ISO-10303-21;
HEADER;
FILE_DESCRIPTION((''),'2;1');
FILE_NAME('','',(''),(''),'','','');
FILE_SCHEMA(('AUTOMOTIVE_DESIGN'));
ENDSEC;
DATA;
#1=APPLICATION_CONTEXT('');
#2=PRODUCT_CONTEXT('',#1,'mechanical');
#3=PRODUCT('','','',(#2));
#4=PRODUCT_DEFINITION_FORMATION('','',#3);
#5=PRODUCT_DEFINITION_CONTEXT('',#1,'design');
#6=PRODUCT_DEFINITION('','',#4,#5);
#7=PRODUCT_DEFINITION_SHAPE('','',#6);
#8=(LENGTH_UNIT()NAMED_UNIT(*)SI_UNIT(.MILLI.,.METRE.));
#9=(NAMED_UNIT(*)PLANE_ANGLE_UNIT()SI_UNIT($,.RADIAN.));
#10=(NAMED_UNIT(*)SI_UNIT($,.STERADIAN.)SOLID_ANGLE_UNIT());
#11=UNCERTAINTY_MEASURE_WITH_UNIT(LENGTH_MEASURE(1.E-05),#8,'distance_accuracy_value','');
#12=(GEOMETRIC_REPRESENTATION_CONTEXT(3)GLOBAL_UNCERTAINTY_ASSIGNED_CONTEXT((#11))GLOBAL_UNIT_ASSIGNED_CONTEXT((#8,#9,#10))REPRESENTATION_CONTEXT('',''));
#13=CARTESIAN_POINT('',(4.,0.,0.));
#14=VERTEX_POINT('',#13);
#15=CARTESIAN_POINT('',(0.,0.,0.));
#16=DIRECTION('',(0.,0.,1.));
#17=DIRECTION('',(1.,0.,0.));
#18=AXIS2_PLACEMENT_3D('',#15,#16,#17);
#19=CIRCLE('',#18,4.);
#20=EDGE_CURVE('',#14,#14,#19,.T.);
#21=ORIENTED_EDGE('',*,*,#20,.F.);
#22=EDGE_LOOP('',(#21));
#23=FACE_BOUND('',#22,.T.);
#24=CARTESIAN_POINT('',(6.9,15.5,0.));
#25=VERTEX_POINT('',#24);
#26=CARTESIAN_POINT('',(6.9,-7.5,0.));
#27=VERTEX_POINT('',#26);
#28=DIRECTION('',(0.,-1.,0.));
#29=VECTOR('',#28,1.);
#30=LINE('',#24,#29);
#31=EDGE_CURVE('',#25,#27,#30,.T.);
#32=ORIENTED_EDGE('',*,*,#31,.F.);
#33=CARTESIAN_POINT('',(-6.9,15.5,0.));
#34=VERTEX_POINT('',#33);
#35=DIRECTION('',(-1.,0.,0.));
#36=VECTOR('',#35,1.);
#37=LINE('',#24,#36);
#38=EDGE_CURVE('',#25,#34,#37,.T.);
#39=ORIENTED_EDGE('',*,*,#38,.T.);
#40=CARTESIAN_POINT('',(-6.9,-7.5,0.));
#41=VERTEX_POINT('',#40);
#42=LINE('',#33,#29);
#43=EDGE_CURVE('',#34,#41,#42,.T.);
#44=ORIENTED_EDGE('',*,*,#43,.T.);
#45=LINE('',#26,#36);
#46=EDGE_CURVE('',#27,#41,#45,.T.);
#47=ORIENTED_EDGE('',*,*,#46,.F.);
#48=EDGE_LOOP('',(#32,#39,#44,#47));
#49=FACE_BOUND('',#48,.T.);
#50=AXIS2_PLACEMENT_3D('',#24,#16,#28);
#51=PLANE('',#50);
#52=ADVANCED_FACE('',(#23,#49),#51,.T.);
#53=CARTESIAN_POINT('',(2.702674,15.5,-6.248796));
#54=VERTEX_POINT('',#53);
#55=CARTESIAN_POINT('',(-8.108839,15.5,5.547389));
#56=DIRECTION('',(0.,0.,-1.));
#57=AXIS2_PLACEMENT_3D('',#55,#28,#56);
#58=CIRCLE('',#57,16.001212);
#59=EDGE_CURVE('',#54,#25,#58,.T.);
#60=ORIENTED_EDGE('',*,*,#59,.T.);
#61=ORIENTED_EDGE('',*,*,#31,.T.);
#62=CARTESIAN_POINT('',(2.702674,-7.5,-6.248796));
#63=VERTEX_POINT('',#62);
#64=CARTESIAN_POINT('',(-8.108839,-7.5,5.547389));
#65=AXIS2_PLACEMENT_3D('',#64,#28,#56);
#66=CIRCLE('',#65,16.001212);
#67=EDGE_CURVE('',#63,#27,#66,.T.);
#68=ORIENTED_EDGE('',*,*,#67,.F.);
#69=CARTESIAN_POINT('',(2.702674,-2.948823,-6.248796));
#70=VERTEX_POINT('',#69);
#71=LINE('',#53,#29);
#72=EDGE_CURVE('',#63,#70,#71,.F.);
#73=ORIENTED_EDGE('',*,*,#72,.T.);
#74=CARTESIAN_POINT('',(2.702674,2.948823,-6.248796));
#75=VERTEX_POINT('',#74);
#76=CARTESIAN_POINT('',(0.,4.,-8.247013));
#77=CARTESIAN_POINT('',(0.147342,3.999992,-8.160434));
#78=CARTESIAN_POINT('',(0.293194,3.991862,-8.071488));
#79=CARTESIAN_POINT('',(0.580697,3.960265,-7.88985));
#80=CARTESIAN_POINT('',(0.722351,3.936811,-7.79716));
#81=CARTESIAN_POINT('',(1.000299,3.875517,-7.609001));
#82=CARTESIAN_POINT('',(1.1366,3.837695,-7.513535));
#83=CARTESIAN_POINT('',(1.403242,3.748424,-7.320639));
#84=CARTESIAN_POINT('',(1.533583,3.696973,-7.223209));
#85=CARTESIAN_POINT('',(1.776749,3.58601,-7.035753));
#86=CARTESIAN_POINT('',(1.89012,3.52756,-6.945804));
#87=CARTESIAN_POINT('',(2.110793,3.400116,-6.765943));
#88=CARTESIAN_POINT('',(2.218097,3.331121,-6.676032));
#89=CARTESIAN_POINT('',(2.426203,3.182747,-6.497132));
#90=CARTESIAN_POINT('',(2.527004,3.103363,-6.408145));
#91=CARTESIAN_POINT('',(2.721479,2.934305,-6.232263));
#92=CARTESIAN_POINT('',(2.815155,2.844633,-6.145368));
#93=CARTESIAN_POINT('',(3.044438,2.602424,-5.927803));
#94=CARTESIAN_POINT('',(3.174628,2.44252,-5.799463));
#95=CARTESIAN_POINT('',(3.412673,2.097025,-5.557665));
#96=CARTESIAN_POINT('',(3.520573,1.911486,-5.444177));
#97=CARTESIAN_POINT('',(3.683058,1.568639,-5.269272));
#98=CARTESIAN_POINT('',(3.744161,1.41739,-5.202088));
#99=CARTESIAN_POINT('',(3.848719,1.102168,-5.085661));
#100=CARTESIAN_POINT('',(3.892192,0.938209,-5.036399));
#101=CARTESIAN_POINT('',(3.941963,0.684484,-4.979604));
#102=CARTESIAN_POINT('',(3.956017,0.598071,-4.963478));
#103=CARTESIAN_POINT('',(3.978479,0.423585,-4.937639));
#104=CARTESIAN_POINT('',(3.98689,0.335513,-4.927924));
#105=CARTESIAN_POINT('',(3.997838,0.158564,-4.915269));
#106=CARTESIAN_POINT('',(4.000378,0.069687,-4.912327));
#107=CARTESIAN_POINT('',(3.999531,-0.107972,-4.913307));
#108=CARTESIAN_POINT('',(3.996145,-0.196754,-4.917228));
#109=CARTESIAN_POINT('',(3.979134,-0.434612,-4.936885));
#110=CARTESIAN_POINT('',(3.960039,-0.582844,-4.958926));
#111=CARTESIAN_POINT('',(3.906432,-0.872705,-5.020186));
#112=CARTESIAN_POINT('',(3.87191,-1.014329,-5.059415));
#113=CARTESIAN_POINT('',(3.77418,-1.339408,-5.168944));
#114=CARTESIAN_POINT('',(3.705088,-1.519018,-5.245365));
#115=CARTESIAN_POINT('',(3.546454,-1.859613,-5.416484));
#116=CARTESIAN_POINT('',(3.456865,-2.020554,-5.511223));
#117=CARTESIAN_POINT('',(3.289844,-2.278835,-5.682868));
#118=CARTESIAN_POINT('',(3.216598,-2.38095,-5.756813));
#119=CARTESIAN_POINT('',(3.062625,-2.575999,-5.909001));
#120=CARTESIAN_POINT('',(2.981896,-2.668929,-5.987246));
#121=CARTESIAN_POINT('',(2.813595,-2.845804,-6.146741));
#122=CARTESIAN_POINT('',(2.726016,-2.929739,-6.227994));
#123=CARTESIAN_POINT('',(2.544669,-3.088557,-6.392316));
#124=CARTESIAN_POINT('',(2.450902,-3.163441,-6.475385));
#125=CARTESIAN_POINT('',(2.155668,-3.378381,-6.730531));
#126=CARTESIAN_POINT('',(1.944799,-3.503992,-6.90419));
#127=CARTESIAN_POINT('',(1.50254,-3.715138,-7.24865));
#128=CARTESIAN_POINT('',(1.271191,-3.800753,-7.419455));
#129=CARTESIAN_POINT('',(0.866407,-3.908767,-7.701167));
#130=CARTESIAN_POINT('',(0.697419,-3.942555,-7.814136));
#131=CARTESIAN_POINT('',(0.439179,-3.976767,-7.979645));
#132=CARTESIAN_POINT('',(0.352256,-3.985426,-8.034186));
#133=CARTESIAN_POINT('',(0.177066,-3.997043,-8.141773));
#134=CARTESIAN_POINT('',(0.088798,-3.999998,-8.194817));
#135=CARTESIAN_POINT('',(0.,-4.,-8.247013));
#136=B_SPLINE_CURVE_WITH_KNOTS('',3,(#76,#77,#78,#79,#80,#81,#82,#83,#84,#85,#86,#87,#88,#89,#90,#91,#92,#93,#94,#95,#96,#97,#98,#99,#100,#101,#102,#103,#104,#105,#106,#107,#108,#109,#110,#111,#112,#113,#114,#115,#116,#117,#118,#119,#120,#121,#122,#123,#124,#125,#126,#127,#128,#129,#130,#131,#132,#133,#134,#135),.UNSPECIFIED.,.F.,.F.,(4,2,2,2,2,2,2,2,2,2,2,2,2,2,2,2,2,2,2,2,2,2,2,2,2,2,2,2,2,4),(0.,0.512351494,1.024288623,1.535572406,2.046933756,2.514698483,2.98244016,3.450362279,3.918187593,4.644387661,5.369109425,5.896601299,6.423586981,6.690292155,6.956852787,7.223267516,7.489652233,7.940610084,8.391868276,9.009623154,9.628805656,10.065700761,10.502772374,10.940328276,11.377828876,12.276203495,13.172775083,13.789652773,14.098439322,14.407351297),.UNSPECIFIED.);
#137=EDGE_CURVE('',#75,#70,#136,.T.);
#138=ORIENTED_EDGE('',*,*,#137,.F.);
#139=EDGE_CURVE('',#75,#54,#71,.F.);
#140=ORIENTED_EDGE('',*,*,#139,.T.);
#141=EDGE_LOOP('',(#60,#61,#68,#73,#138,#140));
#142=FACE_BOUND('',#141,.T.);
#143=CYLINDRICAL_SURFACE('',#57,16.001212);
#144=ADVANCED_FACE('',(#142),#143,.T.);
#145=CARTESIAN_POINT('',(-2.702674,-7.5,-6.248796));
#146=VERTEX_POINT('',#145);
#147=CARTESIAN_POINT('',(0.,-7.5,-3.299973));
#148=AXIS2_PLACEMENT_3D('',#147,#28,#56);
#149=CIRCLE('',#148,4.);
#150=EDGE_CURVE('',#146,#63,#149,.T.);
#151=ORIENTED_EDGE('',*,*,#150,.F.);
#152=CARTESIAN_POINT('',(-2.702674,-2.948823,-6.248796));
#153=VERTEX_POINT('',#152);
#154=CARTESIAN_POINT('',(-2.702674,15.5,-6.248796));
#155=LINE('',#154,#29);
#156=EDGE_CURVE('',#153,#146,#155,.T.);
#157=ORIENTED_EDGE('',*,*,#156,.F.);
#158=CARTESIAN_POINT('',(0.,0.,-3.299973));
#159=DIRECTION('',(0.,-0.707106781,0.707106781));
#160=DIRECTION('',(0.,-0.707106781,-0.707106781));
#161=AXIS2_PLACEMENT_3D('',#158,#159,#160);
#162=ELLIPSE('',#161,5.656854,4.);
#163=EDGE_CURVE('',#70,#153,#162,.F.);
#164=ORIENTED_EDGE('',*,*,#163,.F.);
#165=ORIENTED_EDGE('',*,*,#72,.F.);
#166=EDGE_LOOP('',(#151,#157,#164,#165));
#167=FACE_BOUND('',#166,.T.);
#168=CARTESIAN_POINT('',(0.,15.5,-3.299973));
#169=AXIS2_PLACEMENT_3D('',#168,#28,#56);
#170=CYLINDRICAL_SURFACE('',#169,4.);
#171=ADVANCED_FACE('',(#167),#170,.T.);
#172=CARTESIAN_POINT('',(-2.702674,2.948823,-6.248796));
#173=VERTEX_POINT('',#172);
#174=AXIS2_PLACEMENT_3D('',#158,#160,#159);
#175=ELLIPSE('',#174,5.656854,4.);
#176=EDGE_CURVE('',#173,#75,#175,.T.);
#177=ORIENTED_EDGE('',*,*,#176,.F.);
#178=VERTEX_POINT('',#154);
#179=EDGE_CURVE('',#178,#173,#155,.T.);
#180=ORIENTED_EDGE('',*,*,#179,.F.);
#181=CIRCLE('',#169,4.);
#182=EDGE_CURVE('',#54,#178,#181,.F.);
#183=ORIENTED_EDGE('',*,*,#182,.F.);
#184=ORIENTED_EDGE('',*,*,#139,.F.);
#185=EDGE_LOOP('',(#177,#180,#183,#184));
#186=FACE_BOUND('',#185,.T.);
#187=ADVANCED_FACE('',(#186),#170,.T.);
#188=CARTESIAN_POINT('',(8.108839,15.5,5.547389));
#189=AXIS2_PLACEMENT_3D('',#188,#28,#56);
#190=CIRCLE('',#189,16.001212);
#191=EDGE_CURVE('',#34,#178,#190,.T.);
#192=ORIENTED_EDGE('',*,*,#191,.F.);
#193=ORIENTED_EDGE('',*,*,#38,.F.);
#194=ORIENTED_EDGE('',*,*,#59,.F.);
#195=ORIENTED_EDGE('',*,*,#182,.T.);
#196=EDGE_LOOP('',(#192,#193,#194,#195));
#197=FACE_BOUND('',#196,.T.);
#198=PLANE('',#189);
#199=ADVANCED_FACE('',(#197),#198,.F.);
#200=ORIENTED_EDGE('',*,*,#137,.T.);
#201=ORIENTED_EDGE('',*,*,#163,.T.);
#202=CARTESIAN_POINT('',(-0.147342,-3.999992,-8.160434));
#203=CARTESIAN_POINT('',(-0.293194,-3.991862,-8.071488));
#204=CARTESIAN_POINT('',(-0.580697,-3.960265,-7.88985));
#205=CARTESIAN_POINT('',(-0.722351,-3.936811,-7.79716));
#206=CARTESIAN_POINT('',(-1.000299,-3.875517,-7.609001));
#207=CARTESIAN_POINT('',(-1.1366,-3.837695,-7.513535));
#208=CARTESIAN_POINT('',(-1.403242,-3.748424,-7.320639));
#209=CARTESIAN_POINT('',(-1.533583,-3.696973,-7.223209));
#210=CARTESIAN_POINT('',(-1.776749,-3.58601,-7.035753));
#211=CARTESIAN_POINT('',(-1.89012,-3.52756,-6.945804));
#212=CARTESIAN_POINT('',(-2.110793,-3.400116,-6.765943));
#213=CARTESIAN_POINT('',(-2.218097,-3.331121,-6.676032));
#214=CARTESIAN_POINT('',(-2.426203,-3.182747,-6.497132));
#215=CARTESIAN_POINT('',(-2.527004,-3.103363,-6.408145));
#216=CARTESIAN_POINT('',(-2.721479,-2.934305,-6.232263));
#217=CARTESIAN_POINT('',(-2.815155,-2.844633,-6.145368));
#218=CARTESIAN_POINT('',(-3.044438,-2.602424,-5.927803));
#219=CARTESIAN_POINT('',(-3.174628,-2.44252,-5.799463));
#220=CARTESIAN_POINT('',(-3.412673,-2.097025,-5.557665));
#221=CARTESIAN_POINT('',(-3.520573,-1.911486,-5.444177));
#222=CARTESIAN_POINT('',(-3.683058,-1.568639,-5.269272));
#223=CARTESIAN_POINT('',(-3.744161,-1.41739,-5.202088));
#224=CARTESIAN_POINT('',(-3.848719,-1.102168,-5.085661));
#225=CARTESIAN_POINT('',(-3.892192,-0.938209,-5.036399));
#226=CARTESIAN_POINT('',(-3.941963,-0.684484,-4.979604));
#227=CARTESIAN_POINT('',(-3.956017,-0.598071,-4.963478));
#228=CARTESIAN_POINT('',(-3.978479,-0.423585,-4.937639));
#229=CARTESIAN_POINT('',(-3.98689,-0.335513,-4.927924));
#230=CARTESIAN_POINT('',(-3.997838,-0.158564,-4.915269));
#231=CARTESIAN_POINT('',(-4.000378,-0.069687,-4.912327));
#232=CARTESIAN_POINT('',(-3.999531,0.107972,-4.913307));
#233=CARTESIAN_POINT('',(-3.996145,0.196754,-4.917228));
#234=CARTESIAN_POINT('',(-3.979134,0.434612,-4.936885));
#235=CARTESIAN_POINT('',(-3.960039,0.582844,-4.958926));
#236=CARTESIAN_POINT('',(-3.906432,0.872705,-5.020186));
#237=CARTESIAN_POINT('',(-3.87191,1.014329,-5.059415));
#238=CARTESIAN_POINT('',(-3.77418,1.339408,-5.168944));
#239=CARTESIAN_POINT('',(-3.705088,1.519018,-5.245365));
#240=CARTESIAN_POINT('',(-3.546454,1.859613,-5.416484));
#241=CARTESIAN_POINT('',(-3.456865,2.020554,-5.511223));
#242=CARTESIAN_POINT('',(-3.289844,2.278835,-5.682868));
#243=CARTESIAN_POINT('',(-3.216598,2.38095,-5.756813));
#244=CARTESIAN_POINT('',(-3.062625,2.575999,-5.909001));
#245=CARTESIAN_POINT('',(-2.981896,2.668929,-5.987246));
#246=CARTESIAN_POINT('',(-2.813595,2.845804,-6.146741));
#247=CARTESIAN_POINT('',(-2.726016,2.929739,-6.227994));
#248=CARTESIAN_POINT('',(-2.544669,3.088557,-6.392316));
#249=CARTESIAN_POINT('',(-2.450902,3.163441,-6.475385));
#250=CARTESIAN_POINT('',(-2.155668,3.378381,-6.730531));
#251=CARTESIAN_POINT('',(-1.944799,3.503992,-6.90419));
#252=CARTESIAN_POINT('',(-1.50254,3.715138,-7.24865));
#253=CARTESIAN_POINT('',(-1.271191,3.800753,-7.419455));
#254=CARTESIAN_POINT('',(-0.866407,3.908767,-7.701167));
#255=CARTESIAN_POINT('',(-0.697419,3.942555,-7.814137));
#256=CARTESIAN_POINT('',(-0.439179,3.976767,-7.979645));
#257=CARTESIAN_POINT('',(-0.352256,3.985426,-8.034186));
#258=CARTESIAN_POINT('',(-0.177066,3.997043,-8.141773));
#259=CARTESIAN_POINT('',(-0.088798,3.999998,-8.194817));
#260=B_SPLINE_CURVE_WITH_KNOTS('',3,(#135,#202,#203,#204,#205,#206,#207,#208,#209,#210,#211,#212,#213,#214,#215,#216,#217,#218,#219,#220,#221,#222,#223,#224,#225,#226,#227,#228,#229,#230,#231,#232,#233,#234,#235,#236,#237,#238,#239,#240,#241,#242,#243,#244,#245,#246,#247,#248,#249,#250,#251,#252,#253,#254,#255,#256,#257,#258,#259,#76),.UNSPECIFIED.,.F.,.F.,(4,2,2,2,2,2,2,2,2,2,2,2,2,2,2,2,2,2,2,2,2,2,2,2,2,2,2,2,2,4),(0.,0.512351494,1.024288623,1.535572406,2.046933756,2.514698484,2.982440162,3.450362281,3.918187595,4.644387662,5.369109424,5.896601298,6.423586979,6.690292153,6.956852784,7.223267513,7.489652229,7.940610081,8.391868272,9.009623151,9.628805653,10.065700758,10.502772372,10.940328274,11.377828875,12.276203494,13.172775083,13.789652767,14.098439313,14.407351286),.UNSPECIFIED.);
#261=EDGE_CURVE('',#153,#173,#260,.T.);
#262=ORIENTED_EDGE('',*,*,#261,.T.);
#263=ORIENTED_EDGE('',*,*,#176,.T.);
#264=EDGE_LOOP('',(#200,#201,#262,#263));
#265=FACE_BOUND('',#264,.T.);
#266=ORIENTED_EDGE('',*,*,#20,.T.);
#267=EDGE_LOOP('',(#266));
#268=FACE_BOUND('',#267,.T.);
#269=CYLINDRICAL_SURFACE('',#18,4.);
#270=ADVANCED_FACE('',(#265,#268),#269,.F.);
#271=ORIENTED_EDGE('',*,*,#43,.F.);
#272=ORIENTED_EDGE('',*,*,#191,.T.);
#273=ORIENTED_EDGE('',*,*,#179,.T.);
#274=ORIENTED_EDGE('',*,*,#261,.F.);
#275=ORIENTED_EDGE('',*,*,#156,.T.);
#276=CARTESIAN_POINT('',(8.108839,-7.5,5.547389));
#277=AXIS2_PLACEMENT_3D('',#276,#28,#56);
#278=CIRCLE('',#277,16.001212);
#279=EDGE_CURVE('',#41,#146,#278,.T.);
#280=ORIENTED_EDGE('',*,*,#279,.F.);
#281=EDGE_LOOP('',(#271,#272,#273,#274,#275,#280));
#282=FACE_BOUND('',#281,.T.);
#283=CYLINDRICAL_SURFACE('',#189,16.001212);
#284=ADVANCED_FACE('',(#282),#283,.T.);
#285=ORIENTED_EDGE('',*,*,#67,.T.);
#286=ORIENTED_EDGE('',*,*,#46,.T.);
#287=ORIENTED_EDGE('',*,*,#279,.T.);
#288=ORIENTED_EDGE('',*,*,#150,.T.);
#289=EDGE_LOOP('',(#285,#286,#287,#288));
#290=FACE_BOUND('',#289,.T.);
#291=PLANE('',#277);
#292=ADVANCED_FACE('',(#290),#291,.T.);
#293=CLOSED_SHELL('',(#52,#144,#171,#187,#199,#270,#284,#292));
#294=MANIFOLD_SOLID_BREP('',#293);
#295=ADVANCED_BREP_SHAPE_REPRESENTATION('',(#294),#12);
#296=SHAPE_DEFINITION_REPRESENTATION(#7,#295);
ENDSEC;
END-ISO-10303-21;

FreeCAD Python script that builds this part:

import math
import FreeCAD as App
import Part
import Sketcher
Q = App.Units.Quantity


def edges_at(feature, points):
    """Names of the edges that pass closest to the given points."""
    edges = feature.Shape.Edges
    near = lambda p: min(range(len(edges)), key=lambda i: edges[i].distToShape(Part.Vertex(*p))[0])
    return sorted({f"Edge{near(p) + 1}" for p in points})

doc = App.newDocument("Part")
body = doc.addObject("PartDesign::Body", "Body")

# Sketch on XZ plane
sketch1 = body.newObject("Sketcher::SketchObject", "Sketch")
sketch1.AttachmentSupport = (doc.getObject("XZ_Plane"), [""])
sketch1.MapMode = "FlatFace"
sketch1.AttachmentOffset = App.Placement(App.Vector(0, 0, 7.5), App.Rotation())
sketch1.addGeometry([
    Part.LineSegment(App.Vector(6.9, 0, 0), App.Vector(-6.9, 0, 0)),
    Part.ArcOfCircle(Part.Circle(App.Vector(8.108839, 5.547389, 0), App.Vector(0, 0, 1), 16.001212), math.radians(-159.715279), math.radians(-120.448526)),
    Part.ArcOfCircle(Part.Circle(App.Vector(-8.108839, 5.547389, 0), App.Vector(0, 0, 1), 16.001212), math.radians(-59.551474), math.radians(-20.284721)),
], False)
sketch1.addConstraint([
    Sketcher.Constraint("Coincident", 0, 2, 1, 1),
    Sketcher.Constraint("Coincident", 1, 2, 2, 1),
    Sketcher.Constraint("Coincident", 2, 2, 0, 1),
    Sketcher.Constraint("Horizontal", 0),
    Sketcher.Constraint("Equal", 1, 2),
    Sketcher.Constraint("Symmetric", 0, 2, 2, 2, -1, 1),
    Sketcher.Constraint("PointOnObject", 1, 2, -2),
    Sketcher.Constraint("DistanceX", 0, 2, 0, 1, Q("13.8 mm")),
    Sketcher.Constraint("Radius", 1, Q("16.001212 mm")),
    Sketcher.Constraint("DistanceY", 1, 2, 2, 3, Q("13.794401 mm")),
])
pad1 = body.newObject("PartDesign::Pad", "Pad")
pad1.Profile = sketch1
pad1.Length = 23
pad1.Reversed = True

# Sketch on XY plane
sketch2 = body.newObject("Sketcher::SketchObject", "Sketch001")
sketch2.AttachmentSupport = (doc.getObject("XY_Plane"), [""])
sketch2.MapMode = "FlatFace"
sketch2.addGeometry(Part.Circle(App.Vector(0, 0, 0), App.Vector(0, 0, 1), 4), False)
sketch2.addConstraint([
    Sketcher.Constraint("Coincident", 0, 3, -1, 1),
    Sketcher.Constraint("Diameter", 0, Q("8 mm")),
])
doc.recompute()
hole = body.newObject("PartDesign::Hole", "Hole")
hole.Profile = sketch2
hole.ThreadType = "None"
hole.Diameter = 8
hole.DepthType = "ThroughAll"
doc.recompute()

fillet = body.newObject("PartDesign::Fillet", "Fillet")
fillet.Base = (hole, edges_at(hole, [(0, 9.75, -8.247), (0, -5.75, -8.247)]))
fillet.Radius = 4

doc.recompute()
